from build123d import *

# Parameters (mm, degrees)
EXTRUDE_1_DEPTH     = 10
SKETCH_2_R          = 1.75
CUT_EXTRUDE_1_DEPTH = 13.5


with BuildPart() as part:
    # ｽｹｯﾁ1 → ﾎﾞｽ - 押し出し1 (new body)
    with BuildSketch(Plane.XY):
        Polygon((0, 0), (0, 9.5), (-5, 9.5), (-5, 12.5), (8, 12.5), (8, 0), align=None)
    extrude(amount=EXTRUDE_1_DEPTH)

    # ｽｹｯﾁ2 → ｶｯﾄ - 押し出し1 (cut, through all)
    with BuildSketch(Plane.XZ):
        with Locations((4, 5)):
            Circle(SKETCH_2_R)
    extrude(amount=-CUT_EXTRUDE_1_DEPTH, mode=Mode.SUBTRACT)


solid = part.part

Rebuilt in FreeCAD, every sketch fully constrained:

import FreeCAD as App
import Part
import Sketcher

V = App.Vector
Q = App.Units.Quantity

doc = App.newDocument("Part")
params = doc.addObject("Spreadsheet::Sheet", "Params")
for row, (alias, value) in enumerate([
    ("sketch1_width", "8 mm"),
    ("sketch1_width2", "13 mm"),
    ("sketch1_height", "3 mm"),
    ("sketch1_height2", "9.5 mm"),
    ("pad1_length", "10 mm"),
    ("sketch2_diameter", "3.5 mm"),
], start=1):
    params.set(f"A{row}", alias)
    params.set(f"B{row}", "=" + value)
    params.setAlias(f"B{row}", alias)

body = doc.addObject("PartDesign::Body", "Body")

# Sketch on XY plane
sketch1 = body.newObject("Sketcher::SketchObject", "Sketch")
sketch1.AttachmentSupport = (doc.getObject("XY_Plane"), [""])
sketch1.MapMode = "FlatFace"
sketch1.addGeometry(Part.LineSegment(V(0, 9.5, 0), V(0, 0, 0)), False)
sketch1.addGeometry(Part.LineSegment(V(0, 0, 0), V(8, 0, 0)), False)
sketch1.addGeometry(Part.LineSegment(V(8, 0, 0), V(8, 12.5, 0)), False)
sketch1.addGeometry(Part.LineSegment(V(8, 12.5, 0), V(-5, 12.5, 0)), False)
sketch1.addGeometry(Part.LineSegment(V(-5, 12.5, 0), V(-5, 9.5, 0)), False)
sketch1.addGeometry(Part.LineSegment(V(-5, 9.5, 0), V(0, 9.5, 0)), False)
sketch1.addConstraint(Sketcher.Constraint("Coincident", 0, 2, 1, 1))
sketch1.addConstraint(Sketcher.Constraint("Coincident", 1, 2, 2, 1))
sketch1.addConstraint(Sketcher.Constraint("Coincident", 2, 2, 3, 1))
sketch1.addConstraint(Sketcher.Constraint("Coincident", 3, 2, 4, 1))
sketch1.addConstraint(Sketcher.Constraint("Coincident", 4, 2, 5, 1))
sketch1.addConstraint(Sketcher.Constraint("Coincident", 5, 2, 0, 1))
sketch1.addConstraint(Sketcher.Constraint("Vertical", 0))
sketch1.addConstraint(Sketcher.Constraint("Horizontal", 1))
sketch1.addConstraint(Sketcher.Constraint("Vertical", 2))
sketch1.addConstraint(Sketcher.Constraint("Horizontal", 3))
sketch1.addConstraint(Sketcher.Constraint("Vertical", 4))
sketch1.addConstraint(Sketcher.Constraint("Horizontal", 5))
sketch1.addConstraint(Sketcher.Constraint("Coincident", 0, 2, -1, 1))
sketch1.addConstraint(Sketcher.Constraint("DistanceX", 1, 1, 1, 2, Q("8 mm")))
sketch1.addConstraint(Sketcher.Constraint("DistanceX", 3, 2, 3, 1, Q("13 mm")))
sketch1.addConstraint(Sketcher.Constraint("DistanceY", 4, 2, 4, 1, Q("3 mm")))
sketch1.addConstraint(Sketcher.Constraint("DistanceY", 0, 2, 0, 1, Q("9.5 mm")))
sketch1.setExpression("Constraints[13]", "Params.sketch1_width")
sketch1.setExpression("Constraints[14]", "Params.sketch1_width2")
sketch1.setExpression("Constraints[15]", "Params.sketch1_height")
sketch1.setExpression("Constraints[16]", "Params.sketch1_height2")
pad1 = body.newObject("PartDesign::Pad", "Pad")
pad1.Profile = sketch1
pad1.setExpression("Length", "Params.pad1_length")

# Sketch on XZ plane
sketch2 = body.newObject("Sketcher::SketchObject", "Sketch001")
sketch2.AttachmentSupport = (doc.getObject("XZ_Plane"), [""])
sketch2.MapMode = "FlatFace"
sketch2.addGeometry(Part.Circle(V(4, 5, 0), V(0, 0, 1), 1.75), False)
sketch2.addConstraint(Sketcher.Constraint("Diameter", 0, Q("3.5 mm")))
sketch2.addConstraint(Sketcher.Constraint("DistanceX", -1, 1, 0, 3, Q("4 mm")))
sketch2.addConstraint(Sketcher.Constraint("DistanceY", -1, 1, 0, 3, Q("5 mm")))
sketch2.setExpression("Constraints[0]", "Params.sketch2_diameter")
pocket1 = body.newObject("PartDesign::Pocket", "Pocket")
pocket1.Profile = sketch2
pocket1.Type = "ThroughAll"

doc.recompute()
